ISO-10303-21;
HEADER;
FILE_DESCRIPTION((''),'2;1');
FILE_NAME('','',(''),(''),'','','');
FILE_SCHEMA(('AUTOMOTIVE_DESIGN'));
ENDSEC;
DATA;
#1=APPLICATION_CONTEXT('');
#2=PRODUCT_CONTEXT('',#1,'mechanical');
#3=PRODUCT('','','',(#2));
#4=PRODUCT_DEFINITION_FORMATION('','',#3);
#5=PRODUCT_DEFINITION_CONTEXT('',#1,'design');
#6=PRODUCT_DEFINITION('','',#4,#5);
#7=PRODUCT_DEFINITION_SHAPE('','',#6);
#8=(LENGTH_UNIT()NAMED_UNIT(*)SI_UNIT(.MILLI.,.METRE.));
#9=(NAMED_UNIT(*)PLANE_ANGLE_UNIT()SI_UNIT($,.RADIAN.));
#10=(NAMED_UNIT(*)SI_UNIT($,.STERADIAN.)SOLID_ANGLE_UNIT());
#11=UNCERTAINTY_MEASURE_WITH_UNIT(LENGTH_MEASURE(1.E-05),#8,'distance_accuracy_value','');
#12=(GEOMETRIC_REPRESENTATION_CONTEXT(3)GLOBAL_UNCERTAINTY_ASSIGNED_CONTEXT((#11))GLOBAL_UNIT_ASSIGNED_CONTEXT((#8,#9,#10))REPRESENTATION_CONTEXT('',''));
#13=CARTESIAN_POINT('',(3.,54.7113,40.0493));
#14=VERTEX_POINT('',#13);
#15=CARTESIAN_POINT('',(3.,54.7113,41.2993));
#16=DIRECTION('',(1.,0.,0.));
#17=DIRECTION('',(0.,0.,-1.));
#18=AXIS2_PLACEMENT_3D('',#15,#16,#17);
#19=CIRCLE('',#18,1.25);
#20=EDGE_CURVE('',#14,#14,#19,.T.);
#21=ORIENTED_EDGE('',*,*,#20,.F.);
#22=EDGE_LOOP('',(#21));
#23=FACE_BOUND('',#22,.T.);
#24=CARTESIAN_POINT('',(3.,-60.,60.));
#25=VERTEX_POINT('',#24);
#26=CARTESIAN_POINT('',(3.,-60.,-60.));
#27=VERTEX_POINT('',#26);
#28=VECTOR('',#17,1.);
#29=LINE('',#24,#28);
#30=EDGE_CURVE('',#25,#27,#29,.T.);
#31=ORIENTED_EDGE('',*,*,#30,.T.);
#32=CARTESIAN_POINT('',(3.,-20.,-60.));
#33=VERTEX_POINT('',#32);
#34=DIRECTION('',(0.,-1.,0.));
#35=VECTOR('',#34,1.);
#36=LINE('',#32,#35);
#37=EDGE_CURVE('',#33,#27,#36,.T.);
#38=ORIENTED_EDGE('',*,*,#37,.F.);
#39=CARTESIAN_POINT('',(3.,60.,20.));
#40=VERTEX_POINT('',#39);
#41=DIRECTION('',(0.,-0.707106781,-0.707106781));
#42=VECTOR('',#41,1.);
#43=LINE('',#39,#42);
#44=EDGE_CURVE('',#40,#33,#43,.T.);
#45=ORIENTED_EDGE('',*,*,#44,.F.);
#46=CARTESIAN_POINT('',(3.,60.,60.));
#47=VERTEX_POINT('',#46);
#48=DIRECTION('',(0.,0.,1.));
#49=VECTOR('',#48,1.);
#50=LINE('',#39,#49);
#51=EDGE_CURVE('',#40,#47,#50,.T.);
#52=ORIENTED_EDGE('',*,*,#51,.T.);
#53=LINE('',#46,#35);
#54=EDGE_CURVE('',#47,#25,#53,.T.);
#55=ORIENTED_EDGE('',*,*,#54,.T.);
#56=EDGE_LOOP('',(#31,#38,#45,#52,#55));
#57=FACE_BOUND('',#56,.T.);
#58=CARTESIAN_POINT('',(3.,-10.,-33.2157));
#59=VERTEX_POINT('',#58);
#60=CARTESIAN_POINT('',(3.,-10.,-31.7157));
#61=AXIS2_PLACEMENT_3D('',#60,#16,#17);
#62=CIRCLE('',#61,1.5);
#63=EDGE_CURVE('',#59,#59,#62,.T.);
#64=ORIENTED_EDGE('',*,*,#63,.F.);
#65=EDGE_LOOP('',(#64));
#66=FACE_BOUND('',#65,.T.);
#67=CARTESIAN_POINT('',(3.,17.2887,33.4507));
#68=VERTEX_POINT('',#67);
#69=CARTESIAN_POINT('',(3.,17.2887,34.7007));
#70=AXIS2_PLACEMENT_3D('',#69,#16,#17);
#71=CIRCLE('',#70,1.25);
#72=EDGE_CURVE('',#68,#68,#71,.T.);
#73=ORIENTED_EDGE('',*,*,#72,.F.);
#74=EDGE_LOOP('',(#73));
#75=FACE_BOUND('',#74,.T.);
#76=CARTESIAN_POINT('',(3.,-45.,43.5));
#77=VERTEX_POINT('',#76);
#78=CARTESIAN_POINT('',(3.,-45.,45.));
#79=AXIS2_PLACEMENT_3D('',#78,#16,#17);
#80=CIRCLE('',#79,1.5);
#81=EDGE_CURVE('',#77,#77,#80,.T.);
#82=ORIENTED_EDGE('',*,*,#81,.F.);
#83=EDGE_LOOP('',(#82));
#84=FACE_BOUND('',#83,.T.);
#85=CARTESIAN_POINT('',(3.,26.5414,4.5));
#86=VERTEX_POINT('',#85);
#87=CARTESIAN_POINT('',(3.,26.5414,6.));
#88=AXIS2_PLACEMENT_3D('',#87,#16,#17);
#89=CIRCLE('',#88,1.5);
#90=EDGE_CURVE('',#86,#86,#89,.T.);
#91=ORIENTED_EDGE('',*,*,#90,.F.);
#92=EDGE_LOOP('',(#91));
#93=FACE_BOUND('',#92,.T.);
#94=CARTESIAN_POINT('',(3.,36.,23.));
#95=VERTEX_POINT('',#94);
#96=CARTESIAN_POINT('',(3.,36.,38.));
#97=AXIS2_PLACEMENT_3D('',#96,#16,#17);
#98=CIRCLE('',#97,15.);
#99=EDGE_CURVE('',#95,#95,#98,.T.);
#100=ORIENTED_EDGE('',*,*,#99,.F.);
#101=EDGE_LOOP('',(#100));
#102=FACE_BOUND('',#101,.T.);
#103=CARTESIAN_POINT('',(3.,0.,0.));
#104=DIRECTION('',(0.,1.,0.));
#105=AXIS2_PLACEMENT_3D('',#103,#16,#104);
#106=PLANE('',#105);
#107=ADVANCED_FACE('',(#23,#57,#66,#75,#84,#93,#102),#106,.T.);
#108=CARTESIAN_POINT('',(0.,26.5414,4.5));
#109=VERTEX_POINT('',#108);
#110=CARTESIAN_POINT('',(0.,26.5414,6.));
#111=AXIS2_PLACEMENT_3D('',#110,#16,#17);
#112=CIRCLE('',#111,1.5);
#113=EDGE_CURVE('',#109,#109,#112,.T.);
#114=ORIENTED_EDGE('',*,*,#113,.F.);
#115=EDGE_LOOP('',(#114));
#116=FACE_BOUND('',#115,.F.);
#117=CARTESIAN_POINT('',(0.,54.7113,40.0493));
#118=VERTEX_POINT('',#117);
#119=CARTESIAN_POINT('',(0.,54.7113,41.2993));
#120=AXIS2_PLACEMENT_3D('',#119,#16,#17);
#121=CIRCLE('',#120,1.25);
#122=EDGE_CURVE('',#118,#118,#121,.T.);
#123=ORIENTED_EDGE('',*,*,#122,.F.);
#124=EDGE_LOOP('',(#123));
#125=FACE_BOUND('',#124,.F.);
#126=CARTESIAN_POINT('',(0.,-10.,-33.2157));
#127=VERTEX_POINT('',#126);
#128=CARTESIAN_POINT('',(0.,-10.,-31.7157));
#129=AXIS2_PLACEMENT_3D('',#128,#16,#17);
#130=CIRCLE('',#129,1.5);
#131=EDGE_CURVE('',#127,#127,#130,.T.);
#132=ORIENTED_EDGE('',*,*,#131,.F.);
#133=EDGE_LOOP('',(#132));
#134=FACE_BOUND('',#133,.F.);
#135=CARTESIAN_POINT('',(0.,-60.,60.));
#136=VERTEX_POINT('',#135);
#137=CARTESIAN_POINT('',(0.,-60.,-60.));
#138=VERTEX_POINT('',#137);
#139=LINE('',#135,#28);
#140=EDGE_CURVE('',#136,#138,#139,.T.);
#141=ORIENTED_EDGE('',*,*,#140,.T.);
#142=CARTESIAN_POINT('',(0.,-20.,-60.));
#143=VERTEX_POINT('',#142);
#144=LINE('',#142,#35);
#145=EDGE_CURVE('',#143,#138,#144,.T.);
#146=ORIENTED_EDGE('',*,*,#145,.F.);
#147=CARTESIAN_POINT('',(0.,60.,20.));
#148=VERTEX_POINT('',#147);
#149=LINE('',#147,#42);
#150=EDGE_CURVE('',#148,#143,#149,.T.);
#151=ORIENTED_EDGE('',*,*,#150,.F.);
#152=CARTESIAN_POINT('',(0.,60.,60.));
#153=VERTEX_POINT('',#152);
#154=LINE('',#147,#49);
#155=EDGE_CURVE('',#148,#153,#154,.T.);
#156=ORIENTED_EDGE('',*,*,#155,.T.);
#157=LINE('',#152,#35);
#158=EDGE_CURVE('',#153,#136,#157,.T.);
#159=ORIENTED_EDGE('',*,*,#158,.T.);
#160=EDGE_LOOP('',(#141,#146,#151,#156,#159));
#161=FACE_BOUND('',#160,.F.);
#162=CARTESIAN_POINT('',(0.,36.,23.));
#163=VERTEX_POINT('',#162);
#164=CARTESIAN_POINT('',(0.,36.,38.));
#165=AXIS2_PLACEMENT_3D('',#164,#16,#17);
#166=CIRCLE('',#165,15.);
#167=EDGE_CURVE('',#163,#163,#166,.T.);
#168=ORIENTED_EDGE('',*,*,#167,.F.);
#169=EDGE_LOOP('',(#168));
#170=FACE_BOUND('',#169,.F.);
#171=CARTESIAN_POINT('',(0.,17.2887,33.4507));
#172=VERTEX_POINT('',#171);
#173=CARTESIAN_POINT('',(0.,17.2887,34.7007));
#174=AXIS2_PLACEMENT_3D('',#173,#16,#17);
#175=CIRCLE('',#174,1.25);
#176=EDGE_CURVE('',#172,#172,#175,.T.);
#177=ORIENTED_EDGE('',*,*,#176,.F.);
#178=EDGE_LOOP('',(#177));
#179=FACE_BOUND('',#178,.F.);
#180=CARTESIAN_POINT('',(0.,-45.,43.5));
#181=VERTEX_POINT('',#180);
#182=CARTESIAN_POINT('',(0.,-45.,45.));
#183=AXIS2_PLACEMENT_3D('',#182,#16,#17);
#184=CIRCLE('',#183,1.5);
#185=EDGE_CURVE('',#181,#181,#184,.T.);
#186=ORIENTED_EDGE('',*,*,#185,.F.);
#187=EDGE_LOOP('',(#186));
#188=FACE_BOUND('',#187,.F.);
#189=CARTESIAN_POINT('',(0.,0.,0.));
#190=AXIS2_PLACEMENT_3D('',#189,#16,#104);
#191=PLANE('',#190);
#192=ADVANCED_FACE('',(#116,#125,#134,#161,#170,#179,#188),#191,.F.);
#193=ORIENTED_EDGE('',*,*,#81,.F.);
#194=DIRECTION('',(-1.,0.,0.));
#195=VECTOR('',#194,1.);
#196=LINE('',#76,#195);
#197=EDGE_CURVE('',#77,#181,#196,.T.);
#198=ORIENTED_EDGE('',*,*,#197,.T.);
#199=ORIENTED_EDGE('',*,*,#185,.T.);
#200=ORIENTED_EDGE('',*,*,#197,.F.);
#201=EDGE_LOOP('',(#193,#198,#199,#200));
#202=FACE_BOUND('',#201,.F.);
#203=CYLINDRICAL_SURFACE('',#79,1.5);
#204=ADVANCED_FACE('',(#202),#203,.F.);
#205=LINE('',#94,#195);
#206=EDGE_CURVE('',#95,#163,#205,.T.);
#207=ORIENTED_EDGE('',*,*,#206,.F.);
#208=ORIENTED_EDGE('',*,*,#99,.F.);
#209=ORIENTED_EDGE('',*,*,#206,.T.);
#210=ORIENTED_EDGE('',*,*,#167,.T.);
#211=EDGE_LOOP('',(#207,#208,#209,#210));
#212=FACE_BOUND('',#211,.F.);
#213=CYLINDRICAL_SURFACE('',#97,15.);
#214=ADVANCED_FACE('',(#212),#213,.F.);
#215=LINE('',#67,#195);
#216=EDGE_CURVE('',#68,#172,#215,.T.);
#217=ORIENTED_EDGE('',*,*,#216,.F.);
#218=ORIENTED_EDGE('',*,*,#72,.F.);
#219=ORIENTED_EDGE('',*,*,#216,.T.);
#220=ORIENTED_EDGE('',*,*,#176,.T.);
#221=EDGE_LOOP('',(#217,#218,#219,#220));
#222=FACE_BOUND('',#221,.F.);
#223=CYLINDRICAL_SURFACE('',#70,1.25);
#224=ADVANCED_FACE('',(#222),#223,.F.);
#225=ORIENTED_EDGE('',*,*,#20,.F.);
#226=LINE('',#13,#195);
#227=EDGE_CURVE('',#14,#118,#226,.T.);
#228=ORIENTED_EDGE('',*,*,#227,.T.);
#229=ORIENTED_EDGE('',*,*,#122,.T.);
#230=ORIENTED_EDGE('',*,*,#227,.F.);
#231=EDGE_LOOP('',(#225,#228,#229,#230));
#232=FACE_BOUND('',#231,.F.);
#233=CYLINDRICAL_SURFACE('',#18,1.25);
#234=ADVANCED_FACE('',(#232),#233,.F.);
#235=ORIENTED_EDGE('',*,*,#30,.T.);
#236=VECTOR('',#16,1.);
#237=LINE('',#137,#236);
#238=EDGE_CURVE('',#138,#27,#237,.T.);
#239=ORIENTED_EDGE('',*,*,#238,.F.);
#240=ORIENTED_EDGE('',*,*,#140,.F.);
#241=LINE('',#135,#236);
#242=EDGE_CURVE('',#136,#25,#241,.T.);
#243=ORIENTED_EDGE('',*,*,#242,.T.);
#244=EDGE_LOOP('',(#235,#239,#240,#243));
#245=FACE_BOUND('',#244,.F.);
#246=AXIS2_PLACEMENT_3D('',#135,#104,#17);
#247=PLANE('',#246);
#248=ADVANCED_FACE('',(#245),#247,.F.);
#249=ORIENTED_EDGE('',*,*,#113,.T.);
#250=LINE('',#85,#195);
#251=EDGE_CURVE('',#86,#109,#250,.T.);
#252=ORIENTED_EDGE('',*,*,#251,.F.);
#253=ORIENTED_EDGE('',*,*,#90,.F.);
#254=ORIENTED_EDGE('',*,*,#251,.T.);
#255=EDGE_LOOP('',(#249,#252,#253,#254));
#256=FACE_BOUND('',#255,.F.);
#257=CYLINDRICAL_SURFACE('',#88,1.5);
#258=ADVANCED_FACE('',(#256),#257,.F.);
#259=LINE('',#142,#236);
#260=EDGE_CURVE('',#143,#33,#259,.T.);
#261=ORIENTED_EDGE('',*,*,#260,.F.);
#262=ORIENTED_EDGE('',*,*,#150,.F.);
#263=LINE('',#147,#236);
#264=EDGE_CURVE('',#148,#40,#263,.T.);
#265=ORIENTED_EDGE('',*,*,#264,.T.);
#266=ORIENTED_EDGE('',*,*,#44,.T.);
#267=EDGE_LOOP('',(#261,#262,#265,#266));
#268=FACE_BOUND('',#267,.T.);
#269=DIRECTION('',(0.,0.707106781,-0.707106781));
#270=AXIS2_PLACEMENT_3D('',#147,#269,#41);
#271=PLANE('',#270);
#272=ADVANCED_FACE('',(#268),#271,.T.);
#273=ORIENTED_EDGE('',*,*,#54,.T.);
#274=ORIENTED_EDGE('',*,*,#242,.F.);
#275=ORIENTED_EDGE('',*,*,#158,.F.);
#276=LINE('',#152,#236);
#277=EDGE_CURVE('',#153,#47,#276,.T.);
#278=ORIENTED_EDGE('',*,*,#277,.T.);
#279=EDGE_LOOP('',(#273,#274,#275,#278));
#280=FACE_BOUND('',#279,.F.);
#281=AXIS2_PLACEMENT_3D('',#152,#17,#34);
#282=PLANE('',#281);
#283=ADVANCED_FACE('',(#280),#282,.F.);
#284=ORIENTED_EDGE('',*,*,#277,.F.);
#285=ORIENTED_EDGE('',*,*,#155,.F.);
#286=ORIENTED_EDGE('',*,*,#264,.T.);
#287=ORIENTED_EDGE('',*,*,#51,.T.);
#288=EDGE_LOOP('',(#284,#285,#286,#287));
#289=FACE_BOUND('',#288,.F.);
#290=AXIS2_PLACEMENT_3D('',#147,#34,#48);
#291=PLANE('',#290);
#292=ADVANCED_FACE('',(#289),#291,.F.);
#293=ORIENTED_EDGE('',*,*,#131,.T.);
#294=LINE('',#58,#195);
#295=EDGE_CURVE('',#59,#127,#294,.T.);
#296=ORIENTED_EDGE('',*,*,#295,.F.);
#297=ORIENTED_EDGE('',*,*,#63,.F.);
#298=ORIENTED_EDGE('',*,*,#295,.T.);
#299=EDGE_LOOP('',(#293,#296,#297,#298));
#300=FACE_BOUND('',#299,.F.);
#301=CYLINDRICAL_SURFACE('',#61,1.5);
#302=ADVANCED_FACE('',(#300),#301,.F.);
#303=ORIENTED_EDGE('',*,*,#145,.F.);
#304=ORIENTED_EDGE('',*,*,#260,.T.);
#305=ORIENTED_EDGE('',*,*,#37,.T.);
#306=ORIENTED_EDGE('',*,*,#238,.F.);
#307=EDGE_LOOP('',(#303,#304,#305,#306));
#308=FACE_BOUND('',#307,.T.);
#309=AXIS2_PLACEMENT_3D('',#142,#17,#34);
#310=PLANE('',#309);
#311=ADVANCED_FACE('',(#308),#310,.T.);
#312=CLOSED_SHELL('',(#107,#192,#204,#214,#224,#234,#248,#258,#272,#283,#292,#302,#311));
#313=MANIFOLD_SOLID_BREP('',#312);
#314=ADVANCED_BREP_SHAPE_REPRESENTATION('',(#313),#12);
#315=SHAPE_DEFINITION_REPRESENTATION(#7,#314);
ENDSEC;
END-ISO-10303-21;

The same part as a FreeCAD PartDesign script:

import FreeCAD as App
import Part
import Sketcher
from FreeCAD import Vector


def add_polygon(sketch, points):
    """Adds a closed chain of lines whose ends are joined by coincident constraints."""
    first, n = sketch.GeometryCount, len(points)
    for a, b in zip(points, points[1:] + points[:1]):
        sketch.addGeometry(Part.LineSegment(App.Vector(*a, 0), App.Vector(*b, 0)), False)
    for i in range(n):
        sketch.addConstraint(Sketcher.Constraint("Coincident", first + i, 2, first + (i + 1) % n, 1))

doc = App.newDocument("Part")
params = doc.addObject("Spreadsheet::Sheet", "Params")
for row, (alias, value) in enumerate([
    ("sketch1_width", "120 mm"),
    ("sketch1_width2", "40 mm"),
    ("pad1_length", "3 mm"),
    ("sketch2_diameter", "30 mm"),
    ("sketch2_diameter2", "3 mm"),
    ("sketch2_diameter3", "2.5 mm"),
    ("pocket1_length", "3 mm"),
], start=1):
    params.set(f"A{row}", alias)
    params.set(f"B{row}", "=" + value)
    params.setAlias(f"B{row}", alias)

body = doc.addObject("PartDesign::Body", "Body")

# Sketch on YZ plane
sketch1 = body.newObject("Sketcher::SketchObject", "Sketch")
sketch1.AttachmentSupport = (doc.getObject("YZ_Plane"), [""])
sketch1.MapMode = "FlatFace"
add_polygon(sketch1, [(60, 20), (60, 60), (-60, 60), (-60, -60), (-20, -60)])  # lines 0-4
sketch1.addConstraint(Sketcher.Constraint("Vertical", 0))
sketch1.addConstraint(Sketcher.Constraint("Horizontal", 1))
sketch1.addConstraint(Sketcher.Constraint("Vertical", 2))
sketch1.addConstraint(Sketcher.Constraint("Horizontal", 3))
sketch1.addConstraint(Sketcher.Constraint("Symmetric", 0, 2, 2, 2, -1, 1))
sketch1.addConstraint(Sketcher.Constraint("Equal", 3, 0))
sketch1.addConstraint(Sketcher.Constraint("Equal", 1, 2))
sketch1.addConstraint(Sketcher.Constraint("DistanceX", 1, 2, 1, 1, 120.0))
sketch1.addConstraint(Sketcher.Constraint("DistanceX", 3, 1, 3, 2, 40.0))
sketch1.setExpression("Constraints[12]", "Params.sketch1_width")
sketch1.setExpression("Constraints[13]", "Params.sketch1_width2")
pad1 = body.newObject("PartDesign::Pad", "Pad")
pad1.Profile = sketch1
pad1.setExpression("Length", "Params.pad1_length")

# Sketch on YZ plane
sketch2 = body.newObject("Sketcher::SketchObject", "Sketch001")
sketch2.AttachmentSupport = (doc.getObject("YZ_Plane"), [""])
sketch2.MapMode = "FlatFace"
sketch2.AttachmentOffset = App.Placement(Vector(0, 0, 3), App.Rotation())
sketch2.addGeometry(Part.Circle(Vector(36, 38, 0), Vector(0, 0, 1), 15), False)
sketch2.addGeometry(Part.Circle(Vector(-45, 45, 0), Vector(0, 0, 1), 1.5), False)
sketch2.addGeometry(Part.Circle(Vector(-10, -31.7, 0), Vector(0, 0, 1), 1.5), False)
sketch2.addGeometry(Part.Circle(Vector(26.5, 6, 0), Vector(0, 0, 1), 1.5), False)
sketch2.addGeometry(Part.Circle(Vector(17.3, 34.7, 0), Vector(0, 0, 1), 1.2), False)
sketch2.addGeometry(Part.Circle(Vector(54.7, 41.3, 0), Vector(0, 0, 1), 1.2), False)
sketch2.addConstraint(Sketcher.Constraint("Equal", 1, 2))
sketch2.addConstraint(Sketcher.Constraint("Equal", 2, 3))
sketch2.addConstraint(Sketcher.Constraint("Equal", 4, 5))
sketch2.addConstraint(Sketcher.Constraint("Diameter", 0, 30.0))
sketch2.addConstraint(Sketcher.Constraint("Diameter", 1, 3.0))
sketch2.addConstraint(Sketcher.Constraint("Diameter", 4, 2.5))
sketch2.addConstraint(Sketcher.Constraint("DistanceX", -1, 1, 0, 3, 36.0))
sketch2.addConstraint(Sketcher.Constraint("DistanceY", -1, 1, 0, 3, 38.0))
sketch2.addConstraint(Sketcher.Constraint("DistanceX", 1, 3, -1, 1, 45.0))
sketch2.addConstraint(Sketcher.Constraint("DistanceY", -1, 1, 1, 3, 45.0))
sketch2.addConstraint(Sketcher.Constraint("DistanceX", 2, 3, -1, 1, 10.0))
sketch2.addConstraint(Sketcher.Constraint("DistanceY", -1, 1, 3, 3, 6.0))
sketch2.addConstraint(Sketcher.Constraint("DistanceX", 3, 3, 5, 3, 28.17))
sketch2.addConstraint(Sketcher.Constraint("DistanceY", 2, 3, 5, 3, 73.015))
sketch2.addConstraint(Sketcher.Constraint("DistanceY", 2, 3, -1, 1, 31.7157))
sketch2.addConstraint(Sketcher.Constraint("DistanceX", -1, 1, 3, 3, 26.5414))
sketch2.addConstraint(Sketcher.Constraint("DistanceX", -1, 1, 4, 3, 17.2887))
sketch2.addConstraint(Sketcher.Constraint("DistanceY", -1, 1, 4, 3, 34.7007))
sketch2.setExpression("Constraints[3]", "Params.sketch2_diameter")
sketch2.setExpression("Constraints[4]", "Params.sketch2_diameter2")
sketch2.setExpression("Constraints[5]", "Params.sketch2_diameter3")
pocket1 = body.newObject("PartDesign::Pocket", "Pocket")
pocket1.Profile = sketch2
pocket1.setExpression("Length", "Params.pocket1_length")

doc.recompute()
